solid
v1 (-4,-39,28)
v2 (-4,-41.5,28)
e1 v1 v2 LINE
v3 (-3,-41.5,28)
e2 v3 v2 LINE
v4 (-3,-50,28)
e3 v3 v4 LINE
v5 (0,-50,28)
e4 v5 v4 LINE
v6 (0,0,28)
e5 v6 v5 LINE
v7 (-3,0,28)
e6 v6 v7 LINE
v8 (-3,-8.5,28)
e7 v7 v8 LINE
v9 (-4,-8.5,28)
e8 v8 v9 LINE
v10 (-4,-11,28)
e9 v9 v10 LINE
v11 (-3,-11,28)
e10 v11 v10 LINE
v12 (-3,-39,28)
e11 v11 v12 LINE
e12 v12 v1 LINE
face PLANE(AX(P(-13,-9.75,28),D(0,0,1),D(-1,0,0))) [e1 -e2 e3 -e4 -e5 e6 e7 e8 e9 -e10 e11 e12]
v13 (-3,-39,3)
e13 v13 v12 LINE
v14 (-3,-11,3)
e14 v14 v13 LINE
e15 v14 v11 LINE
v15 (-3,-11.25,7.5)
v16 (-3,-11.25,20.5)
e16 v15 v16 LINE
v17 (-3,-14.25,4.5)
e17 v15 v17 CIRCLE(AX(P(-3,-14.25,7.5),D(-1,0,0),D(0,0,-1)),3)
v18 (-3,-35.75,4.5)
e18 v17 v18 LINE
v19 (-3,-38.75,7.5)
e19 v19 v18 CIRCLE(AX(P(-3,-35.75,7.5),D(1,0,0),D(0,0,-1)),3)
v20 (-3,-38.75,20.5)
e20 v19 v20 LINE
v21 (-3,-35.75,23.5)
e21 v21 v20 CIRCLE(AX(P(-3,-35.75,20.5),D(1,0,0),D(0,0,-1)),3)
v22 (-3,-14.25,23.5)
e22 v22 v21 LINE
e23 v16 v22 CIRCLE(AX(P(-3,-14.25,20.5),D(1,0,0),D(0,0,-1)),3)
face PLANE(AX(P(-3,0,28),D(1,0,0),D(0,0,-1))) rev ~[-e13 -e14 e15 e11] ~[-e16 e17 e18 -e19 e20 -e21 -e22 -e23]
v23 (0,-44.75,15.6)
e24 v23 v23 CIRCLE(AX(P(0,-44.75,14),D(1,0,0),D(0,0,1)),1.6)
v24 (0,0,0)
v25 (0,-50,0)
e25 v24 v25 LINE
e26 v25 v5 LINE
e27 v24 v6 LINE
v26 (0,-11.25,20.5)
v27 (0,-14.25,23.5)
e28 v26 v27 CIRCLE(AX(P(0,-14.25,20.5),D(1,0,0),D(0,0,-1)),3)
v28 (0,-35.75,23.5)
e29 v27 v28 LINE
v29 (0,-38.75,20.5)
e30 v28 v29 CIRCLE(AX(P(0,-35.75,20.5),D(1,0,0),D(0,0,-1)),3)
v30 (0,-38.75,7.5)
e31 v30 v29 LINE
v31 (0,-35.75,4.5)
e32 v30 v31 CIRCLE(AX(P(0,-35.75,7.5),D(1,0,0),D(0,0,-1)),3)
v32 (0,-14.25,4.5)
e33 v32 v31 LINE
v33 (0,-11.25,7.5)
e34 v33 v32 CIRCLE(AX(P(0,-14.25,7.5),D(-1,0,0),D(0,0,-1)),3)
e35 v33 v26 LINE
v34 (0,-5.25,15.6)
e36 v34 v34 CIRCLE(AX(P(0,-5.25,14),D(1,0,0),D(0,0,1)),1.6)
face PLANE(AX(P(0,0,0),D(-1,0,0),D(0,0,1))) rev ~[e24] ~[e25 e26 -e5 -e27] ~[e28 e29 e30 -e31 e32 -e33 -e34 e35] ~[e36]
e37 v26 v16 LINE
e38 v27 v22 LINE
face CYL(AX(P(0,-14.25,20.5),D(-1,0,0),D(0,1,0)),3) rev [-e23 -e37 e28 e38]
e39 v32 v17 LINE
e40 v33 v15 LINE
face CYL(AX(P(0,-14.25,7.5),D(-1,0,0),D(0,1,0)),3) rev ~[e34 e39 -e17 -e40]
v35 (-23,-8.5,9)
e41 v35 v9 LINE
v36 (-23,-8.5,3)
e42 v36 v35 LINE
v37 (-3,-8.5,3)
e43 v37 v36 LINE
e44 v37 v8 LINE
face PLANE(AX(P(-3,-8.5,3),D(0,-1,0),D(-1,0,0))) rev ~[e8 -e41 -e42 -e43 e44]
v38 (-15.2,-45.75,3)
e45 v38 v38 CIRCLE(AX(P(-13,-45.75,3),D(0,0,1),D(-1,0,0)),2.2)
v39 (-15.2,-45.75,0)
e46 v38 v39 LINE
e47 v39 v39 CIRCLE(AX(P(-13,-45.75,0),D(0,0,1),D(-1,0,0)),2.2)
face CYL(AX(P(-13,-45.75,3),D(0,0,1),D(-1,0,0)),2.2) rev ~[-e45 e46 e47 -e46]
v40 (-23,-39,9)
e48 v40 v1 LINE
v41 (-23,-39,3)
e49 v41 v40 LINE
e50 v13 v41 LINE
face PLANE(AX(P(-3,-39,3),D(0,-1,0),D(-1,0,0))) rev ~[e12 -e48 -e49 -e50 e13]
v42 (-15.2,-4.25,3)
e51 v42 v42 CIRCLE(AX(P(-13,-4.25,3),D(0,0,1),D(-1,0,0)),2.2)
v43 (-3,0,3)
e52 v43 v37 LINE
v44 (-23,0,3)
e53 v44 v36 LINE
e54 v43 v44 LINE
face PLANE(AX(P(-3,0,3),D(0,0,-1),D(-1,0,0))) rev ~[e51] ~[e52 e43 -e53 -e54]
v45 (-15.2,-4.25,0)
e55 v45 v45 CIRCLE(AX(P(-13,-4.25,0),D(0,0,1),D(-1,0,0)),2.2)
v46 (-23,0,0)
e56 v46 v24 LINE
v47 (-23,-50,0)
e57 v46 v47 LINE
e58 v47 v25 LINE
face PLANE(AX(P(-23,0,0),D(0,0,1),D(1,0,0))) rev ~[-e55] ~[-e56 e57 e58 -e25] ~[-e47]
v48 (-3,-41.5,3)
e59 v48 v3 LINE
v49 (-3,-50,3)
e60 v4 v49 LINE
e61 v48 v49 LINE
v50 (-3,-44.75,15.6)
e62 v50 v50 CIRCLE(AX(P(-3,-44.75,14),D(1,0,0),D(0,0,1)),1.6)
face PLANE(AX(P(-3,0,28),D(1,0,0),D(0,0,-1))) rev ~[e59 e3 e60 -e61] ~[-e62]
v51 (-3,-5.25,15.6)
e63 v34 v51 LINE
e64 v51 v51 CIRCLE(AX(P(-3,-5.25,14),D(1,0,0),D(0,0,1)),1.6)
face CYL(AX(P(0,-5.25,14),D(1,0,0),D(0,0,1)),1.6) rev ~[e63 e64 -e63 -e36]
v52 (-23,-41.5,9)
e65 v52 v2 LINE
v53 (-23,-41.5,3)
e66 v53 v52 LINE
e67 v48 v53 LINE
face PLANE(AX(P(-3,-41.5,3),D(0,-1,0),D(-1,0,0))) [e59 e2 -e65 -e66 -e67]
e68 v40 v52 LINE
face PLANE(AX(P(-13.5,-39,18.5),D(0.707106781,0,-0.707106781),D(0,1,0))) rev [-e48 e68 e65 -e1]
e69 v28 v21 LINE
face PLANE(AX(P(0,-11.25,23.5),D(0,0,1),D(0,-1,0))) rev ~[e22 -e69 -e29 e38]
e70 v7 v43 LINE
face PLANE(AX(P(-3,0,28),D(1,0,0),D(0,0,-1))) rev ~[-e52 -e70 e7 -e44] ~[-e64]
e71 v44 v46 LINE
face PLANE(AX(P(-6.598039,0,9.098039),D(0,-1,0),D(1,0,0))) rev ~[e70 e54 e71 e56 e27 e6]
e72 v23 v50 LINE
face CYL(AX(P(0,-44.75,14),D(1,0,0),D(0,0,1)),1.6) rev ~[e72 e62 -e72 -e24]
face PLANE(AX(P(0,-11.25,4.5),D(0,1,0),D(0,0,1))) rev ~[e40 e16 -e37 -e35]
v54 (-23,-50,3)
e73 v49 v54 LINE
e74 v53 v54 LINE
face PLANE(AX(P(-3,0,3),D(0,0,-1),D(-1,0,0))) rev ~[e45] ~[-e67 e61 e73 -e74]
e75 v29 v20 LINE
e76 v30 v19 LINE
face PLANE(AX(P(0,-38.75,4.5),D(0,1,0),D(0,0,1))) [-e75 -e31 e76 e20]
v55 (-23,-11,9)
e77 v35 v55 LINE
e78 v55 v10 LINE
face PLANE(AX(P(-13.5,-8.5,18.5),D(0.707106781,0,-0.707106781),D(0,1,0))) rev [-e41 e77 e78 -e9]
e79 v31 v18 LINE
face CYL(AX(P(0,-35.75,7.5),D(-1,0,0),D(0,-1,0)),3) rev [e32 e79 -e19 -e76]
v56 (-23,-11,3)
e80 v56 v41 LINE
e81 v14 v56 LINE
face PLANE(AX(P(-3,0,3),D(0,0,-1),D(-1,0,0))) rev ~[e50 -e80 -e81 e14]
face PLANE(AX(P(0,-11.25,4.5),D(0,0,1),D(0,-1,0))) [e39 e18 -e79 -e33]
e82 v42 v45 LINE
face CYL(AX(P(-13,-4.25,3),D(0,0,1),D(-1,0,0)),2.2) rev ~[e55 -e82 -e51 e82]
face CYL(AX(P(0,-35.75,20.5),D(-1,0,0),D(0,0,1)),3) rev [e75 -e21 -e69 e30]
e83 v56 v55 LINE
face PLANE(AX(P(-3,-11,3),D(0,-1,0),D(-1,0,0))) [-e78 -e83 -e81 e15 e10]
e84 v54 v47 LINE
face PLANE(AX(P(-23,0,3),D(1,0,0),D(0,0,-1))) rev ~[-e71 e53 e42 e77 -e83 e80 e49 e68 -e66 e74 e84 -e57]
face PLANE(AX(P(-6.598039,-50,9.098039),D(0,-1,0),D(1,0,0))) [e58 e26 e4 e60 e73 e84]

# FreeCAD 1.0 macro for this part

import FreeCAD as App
import Part
import Sketcher

V = App.Vector


def edges_at(feature, points):
    """Names of the edges that pass closest to the given points."""
    edges = feature.Shape.Edges
    near = lambda p: min(range(len(edges)), key=lambda i: edges[i].distToShape(Part.Vertex(*p))[0])
    return sorted({f"Edge{near(p) + 1}" for p in points})


def add_polygon(sketch, points):
    """Adds a closed chain of lines whose ends are joined by coincident constraints."""
    first, n = sketch.GeometryCount, len(points)
    for a, b in zip(points, points[1:] + points[:1]):
        sketch.addGeometry(Part.LineSegment(App.Vector(*a, 0), App.Vector(*b, 0)), False)
    for i in range(n):
        sketch.addConstraint(Sketcher.Constraint("Coincident", first + i, 2, first + (i + 1) % n, 1))

doc = App.newDocument("Part")
body = doc.addObject("PartDesign::Body", "Body")

# Sketch on XZ plane
sketch1 = body.newObject("Sketcher::SketchObject", "Sketch")
sketch1.AttachmentSupport = (doc.getObject("XZ_Plane"), [""])
sketch1.MapMode = "FlatFace"
add_polygon(sketch1, [(-23, 3), (-23, 0), (0, 0), (0, 28), (-3, 28), (-3, 3)])  # lines 0-5
sketch1.addConstraint([
    Sketcher.Constraint("Vertical", 0),
    Sketcher.Constraint("Horizontal", 1),
    Sketcher.Constraint("Vertical", 2),
    Sketcher.Constraint("Horizontal", 3),
    Sketcher.Constraint("Vertical", 4),
    Sketcher.Constraint("Horizontal", 5),
    Sketcher.Constraint("Coincident", 1, 2, -1, 1),
    Sketcher.Constraint("Equal", 3, 0),
    Sketcher.Constraint("DistanceX", 1, 1, 1, 2, 23.0),
    Sketcher.Constraint("DistanceX", 3, 2, 3, 1, 3.0),
    Sketcher.Constraint("DistanceY", 2, 1, 2, 2, 28.0),
])
pad1 = body.newObject("PartDesign::Pad", "Pad")
pad1.Profile = sketch1
pad1.Length = 50

# Sketch on XY plane
sketch2 = body.newObject("Sketcher::SketchObject", "Sketch001")
sketch2.AttachmentSupport = (doc.getObject("XY_Plane"), [""])
sketch2.MapMode = "FlatFace"
sketch2.AttachmentOffset = App.Placement(V(0, 0, 3), App.Rotation())
add_polygon(sketch2, [(-3, -41.5), (-3, -39), (-23, -39), (-23, -41.5)])  # lines 0-3
add_polygon(sketch2, [(-3, -11), (-3, -8.5), (-23, -8.5), (-23, -11)])  # lines 4-7
sketch2.addConstraint([
    Sketcher.Constraint("Vertical", 0),
    Sketcher.Constraint("Horizontal", 1),
    Sketcher.Constraint("Vertical", 2),
    Sketcher.Constraint("Horizontal", 3),
    Sketcher.Constraint("Vertical", 4),
    Sketcher.Constraint("Horizontal", 5),
    Sketcher.Constraint("Vertical", 6),
    Sketcher.Constraint("Horizontal", 7),
    Sketcher.Constraint("Vertical", 3, 2, 4, 2),
    Sketcher.Constraint("Vertical", 2, 2, 5, 2),
    Sketcher.Constraint("Equal", 2, 4),
    Sketcher.Constraint("DistanceX", 1, 2, 1, 1, 20.0),
    Sketcher.Constraint("DistanceY", 0, 1, 0, 2, 2.5),
    Sketcher.Constraint("DistanceX", 0, 2, -1, 1, 3.0),
    Sketcher.Constraint("DistanceY", 0, 2, -1, 1, 39.0),
    Sketcher.Constraint("DistanceY", 6, 2, -1, 1, 11.0),
])
pad2 = body.newObject("PartDesign::Pad", "Pad001")
pad2.Profile = sketch2
pad2.Length = 25
doc.recompute()

chamfer = body.newObject("PartDesign::Chamfer", "Chamfer")
chamfer.Base = (pad2, edges_at(pad2, [(-23, -40.25, 28), (-23, -9.75, 28)]))
chamfer.Size = 19

# Sketch on YZ plane
sketch3 = body.newObject("Sketcher::SketchObject", "Sketch002")
sketch3.AttachmentSupport = (doc.getObject("YZ_Plane"), [""])
sketch3.MapMode = "FlatFace"
sketch3.addGeometry(Part.Circle(V(-44.75, 14, 0), V(0, 0, 1), 1.6), False)  # 0
sketch3.addGeometry(Part.Circle(V(-5.25, 14, 0), V(0, 0, 1), 1.6), False)  # 1
add_polygon(sketch3, [(-38.75, 4.5), (-11.25, 4.5), (-11.25, 23.5), (-38.75, 23.5)])  # lines 2-5
sketch3.addConstraint([
    Sketcher.Constraint("Horizontal", 2),
    Sketcher.Constraint("Vertical", 3),
    Sketcher.Constraint("Horizontal", 4),
    Sketcher.Constraint("Vertical", 5),
    Sketcher.Constraint("Equal", 0, 1),
    Sketcher.Constraint("Horizontal", 0, 3, 1, 3),
    Sketcher.Constraint("Diameter", 0, 3.2),
    Sketcher.Constraint("DistanceY", 3, 1, 3, 2, 19.0),
    Sketcher.Constraint("DistanceX", 2, 1, 2, 2, 27.5),
    Sketcher.Constraint("DistanceY", -1, 1, 0, 3, 14.0),
    Sketcher.Constraint("DistanceX", 2, 2, 1, 3, 6.0),
    Sketcher.Constraint("DistanceX", 0, 3, 4, 2, 6.0),
    Sketcher.Constraint("DistanceY", -1, 1, 2, 2, 4.5),
    Sketcher.Constraint("DistanceX", 0, 3, -1, 1, 44.75),
])
pocket1 = body.newObject("PartDesign::Pocket", "Pocket")
pocket1.Profile = sketch3
pocket1.Type = "ThroughAll"
doc.recompute()

fillet = body.newObject("PartDesign::Fillet", "Fillet")
fillet.Base = (pocket1, edges_at(pocket1, [
    (-1.5, -11.25, 4.5),
    (-1.5, -11.25, 23.5),
    (-1.5, -38.75, 4.5),
    (-1.5, -38.75, 23.5),
]))
fillet.Radius = 3

# Sketch on XY plane
sketch4 = body.newObject("Sketcher::SketchObject", "Sketch003")
sketch4.AttachmentSupport = (doc.getObject("XY_Plane"), [""])
sketch4.MapMode = "FlatFace"
sketch4.AttachmentOffset = App.Placement(V(0, 0, 3), App.Rotation())
sketch4.addGeometry([
    Part.Circle(V(-13, -4.25, 0), V(0, 0, 1), 2.2),
    Part.Circle(V(-13, -45.75, 0), V(0, 0, 1), 2.2),
], False)
sketch4.addConstraint([
    Sketcher.Constraint("Equal", 0, 1),
    Sketcher.Constraint("Vertical", 0, 3, 1, 3),
    Sketcher.Constraint("Diameter", 0, 4.4),
    Sketcher.Constraint("DistanceX", 0, 3, -1, 1, 13.0),
    Sketcher.Constraint("DistanceY", 1, 3, 0, 3, 41.5),
    Sketcher.Constraint("DistanceY", 0, 3, -1, 1, 4.25),
])
pocket2 = body.newObject("PartDesign::Pocket", "Pocket001")
pocket2.Profile = sketch4
pocket2.Length = 25

doc.recompute()
